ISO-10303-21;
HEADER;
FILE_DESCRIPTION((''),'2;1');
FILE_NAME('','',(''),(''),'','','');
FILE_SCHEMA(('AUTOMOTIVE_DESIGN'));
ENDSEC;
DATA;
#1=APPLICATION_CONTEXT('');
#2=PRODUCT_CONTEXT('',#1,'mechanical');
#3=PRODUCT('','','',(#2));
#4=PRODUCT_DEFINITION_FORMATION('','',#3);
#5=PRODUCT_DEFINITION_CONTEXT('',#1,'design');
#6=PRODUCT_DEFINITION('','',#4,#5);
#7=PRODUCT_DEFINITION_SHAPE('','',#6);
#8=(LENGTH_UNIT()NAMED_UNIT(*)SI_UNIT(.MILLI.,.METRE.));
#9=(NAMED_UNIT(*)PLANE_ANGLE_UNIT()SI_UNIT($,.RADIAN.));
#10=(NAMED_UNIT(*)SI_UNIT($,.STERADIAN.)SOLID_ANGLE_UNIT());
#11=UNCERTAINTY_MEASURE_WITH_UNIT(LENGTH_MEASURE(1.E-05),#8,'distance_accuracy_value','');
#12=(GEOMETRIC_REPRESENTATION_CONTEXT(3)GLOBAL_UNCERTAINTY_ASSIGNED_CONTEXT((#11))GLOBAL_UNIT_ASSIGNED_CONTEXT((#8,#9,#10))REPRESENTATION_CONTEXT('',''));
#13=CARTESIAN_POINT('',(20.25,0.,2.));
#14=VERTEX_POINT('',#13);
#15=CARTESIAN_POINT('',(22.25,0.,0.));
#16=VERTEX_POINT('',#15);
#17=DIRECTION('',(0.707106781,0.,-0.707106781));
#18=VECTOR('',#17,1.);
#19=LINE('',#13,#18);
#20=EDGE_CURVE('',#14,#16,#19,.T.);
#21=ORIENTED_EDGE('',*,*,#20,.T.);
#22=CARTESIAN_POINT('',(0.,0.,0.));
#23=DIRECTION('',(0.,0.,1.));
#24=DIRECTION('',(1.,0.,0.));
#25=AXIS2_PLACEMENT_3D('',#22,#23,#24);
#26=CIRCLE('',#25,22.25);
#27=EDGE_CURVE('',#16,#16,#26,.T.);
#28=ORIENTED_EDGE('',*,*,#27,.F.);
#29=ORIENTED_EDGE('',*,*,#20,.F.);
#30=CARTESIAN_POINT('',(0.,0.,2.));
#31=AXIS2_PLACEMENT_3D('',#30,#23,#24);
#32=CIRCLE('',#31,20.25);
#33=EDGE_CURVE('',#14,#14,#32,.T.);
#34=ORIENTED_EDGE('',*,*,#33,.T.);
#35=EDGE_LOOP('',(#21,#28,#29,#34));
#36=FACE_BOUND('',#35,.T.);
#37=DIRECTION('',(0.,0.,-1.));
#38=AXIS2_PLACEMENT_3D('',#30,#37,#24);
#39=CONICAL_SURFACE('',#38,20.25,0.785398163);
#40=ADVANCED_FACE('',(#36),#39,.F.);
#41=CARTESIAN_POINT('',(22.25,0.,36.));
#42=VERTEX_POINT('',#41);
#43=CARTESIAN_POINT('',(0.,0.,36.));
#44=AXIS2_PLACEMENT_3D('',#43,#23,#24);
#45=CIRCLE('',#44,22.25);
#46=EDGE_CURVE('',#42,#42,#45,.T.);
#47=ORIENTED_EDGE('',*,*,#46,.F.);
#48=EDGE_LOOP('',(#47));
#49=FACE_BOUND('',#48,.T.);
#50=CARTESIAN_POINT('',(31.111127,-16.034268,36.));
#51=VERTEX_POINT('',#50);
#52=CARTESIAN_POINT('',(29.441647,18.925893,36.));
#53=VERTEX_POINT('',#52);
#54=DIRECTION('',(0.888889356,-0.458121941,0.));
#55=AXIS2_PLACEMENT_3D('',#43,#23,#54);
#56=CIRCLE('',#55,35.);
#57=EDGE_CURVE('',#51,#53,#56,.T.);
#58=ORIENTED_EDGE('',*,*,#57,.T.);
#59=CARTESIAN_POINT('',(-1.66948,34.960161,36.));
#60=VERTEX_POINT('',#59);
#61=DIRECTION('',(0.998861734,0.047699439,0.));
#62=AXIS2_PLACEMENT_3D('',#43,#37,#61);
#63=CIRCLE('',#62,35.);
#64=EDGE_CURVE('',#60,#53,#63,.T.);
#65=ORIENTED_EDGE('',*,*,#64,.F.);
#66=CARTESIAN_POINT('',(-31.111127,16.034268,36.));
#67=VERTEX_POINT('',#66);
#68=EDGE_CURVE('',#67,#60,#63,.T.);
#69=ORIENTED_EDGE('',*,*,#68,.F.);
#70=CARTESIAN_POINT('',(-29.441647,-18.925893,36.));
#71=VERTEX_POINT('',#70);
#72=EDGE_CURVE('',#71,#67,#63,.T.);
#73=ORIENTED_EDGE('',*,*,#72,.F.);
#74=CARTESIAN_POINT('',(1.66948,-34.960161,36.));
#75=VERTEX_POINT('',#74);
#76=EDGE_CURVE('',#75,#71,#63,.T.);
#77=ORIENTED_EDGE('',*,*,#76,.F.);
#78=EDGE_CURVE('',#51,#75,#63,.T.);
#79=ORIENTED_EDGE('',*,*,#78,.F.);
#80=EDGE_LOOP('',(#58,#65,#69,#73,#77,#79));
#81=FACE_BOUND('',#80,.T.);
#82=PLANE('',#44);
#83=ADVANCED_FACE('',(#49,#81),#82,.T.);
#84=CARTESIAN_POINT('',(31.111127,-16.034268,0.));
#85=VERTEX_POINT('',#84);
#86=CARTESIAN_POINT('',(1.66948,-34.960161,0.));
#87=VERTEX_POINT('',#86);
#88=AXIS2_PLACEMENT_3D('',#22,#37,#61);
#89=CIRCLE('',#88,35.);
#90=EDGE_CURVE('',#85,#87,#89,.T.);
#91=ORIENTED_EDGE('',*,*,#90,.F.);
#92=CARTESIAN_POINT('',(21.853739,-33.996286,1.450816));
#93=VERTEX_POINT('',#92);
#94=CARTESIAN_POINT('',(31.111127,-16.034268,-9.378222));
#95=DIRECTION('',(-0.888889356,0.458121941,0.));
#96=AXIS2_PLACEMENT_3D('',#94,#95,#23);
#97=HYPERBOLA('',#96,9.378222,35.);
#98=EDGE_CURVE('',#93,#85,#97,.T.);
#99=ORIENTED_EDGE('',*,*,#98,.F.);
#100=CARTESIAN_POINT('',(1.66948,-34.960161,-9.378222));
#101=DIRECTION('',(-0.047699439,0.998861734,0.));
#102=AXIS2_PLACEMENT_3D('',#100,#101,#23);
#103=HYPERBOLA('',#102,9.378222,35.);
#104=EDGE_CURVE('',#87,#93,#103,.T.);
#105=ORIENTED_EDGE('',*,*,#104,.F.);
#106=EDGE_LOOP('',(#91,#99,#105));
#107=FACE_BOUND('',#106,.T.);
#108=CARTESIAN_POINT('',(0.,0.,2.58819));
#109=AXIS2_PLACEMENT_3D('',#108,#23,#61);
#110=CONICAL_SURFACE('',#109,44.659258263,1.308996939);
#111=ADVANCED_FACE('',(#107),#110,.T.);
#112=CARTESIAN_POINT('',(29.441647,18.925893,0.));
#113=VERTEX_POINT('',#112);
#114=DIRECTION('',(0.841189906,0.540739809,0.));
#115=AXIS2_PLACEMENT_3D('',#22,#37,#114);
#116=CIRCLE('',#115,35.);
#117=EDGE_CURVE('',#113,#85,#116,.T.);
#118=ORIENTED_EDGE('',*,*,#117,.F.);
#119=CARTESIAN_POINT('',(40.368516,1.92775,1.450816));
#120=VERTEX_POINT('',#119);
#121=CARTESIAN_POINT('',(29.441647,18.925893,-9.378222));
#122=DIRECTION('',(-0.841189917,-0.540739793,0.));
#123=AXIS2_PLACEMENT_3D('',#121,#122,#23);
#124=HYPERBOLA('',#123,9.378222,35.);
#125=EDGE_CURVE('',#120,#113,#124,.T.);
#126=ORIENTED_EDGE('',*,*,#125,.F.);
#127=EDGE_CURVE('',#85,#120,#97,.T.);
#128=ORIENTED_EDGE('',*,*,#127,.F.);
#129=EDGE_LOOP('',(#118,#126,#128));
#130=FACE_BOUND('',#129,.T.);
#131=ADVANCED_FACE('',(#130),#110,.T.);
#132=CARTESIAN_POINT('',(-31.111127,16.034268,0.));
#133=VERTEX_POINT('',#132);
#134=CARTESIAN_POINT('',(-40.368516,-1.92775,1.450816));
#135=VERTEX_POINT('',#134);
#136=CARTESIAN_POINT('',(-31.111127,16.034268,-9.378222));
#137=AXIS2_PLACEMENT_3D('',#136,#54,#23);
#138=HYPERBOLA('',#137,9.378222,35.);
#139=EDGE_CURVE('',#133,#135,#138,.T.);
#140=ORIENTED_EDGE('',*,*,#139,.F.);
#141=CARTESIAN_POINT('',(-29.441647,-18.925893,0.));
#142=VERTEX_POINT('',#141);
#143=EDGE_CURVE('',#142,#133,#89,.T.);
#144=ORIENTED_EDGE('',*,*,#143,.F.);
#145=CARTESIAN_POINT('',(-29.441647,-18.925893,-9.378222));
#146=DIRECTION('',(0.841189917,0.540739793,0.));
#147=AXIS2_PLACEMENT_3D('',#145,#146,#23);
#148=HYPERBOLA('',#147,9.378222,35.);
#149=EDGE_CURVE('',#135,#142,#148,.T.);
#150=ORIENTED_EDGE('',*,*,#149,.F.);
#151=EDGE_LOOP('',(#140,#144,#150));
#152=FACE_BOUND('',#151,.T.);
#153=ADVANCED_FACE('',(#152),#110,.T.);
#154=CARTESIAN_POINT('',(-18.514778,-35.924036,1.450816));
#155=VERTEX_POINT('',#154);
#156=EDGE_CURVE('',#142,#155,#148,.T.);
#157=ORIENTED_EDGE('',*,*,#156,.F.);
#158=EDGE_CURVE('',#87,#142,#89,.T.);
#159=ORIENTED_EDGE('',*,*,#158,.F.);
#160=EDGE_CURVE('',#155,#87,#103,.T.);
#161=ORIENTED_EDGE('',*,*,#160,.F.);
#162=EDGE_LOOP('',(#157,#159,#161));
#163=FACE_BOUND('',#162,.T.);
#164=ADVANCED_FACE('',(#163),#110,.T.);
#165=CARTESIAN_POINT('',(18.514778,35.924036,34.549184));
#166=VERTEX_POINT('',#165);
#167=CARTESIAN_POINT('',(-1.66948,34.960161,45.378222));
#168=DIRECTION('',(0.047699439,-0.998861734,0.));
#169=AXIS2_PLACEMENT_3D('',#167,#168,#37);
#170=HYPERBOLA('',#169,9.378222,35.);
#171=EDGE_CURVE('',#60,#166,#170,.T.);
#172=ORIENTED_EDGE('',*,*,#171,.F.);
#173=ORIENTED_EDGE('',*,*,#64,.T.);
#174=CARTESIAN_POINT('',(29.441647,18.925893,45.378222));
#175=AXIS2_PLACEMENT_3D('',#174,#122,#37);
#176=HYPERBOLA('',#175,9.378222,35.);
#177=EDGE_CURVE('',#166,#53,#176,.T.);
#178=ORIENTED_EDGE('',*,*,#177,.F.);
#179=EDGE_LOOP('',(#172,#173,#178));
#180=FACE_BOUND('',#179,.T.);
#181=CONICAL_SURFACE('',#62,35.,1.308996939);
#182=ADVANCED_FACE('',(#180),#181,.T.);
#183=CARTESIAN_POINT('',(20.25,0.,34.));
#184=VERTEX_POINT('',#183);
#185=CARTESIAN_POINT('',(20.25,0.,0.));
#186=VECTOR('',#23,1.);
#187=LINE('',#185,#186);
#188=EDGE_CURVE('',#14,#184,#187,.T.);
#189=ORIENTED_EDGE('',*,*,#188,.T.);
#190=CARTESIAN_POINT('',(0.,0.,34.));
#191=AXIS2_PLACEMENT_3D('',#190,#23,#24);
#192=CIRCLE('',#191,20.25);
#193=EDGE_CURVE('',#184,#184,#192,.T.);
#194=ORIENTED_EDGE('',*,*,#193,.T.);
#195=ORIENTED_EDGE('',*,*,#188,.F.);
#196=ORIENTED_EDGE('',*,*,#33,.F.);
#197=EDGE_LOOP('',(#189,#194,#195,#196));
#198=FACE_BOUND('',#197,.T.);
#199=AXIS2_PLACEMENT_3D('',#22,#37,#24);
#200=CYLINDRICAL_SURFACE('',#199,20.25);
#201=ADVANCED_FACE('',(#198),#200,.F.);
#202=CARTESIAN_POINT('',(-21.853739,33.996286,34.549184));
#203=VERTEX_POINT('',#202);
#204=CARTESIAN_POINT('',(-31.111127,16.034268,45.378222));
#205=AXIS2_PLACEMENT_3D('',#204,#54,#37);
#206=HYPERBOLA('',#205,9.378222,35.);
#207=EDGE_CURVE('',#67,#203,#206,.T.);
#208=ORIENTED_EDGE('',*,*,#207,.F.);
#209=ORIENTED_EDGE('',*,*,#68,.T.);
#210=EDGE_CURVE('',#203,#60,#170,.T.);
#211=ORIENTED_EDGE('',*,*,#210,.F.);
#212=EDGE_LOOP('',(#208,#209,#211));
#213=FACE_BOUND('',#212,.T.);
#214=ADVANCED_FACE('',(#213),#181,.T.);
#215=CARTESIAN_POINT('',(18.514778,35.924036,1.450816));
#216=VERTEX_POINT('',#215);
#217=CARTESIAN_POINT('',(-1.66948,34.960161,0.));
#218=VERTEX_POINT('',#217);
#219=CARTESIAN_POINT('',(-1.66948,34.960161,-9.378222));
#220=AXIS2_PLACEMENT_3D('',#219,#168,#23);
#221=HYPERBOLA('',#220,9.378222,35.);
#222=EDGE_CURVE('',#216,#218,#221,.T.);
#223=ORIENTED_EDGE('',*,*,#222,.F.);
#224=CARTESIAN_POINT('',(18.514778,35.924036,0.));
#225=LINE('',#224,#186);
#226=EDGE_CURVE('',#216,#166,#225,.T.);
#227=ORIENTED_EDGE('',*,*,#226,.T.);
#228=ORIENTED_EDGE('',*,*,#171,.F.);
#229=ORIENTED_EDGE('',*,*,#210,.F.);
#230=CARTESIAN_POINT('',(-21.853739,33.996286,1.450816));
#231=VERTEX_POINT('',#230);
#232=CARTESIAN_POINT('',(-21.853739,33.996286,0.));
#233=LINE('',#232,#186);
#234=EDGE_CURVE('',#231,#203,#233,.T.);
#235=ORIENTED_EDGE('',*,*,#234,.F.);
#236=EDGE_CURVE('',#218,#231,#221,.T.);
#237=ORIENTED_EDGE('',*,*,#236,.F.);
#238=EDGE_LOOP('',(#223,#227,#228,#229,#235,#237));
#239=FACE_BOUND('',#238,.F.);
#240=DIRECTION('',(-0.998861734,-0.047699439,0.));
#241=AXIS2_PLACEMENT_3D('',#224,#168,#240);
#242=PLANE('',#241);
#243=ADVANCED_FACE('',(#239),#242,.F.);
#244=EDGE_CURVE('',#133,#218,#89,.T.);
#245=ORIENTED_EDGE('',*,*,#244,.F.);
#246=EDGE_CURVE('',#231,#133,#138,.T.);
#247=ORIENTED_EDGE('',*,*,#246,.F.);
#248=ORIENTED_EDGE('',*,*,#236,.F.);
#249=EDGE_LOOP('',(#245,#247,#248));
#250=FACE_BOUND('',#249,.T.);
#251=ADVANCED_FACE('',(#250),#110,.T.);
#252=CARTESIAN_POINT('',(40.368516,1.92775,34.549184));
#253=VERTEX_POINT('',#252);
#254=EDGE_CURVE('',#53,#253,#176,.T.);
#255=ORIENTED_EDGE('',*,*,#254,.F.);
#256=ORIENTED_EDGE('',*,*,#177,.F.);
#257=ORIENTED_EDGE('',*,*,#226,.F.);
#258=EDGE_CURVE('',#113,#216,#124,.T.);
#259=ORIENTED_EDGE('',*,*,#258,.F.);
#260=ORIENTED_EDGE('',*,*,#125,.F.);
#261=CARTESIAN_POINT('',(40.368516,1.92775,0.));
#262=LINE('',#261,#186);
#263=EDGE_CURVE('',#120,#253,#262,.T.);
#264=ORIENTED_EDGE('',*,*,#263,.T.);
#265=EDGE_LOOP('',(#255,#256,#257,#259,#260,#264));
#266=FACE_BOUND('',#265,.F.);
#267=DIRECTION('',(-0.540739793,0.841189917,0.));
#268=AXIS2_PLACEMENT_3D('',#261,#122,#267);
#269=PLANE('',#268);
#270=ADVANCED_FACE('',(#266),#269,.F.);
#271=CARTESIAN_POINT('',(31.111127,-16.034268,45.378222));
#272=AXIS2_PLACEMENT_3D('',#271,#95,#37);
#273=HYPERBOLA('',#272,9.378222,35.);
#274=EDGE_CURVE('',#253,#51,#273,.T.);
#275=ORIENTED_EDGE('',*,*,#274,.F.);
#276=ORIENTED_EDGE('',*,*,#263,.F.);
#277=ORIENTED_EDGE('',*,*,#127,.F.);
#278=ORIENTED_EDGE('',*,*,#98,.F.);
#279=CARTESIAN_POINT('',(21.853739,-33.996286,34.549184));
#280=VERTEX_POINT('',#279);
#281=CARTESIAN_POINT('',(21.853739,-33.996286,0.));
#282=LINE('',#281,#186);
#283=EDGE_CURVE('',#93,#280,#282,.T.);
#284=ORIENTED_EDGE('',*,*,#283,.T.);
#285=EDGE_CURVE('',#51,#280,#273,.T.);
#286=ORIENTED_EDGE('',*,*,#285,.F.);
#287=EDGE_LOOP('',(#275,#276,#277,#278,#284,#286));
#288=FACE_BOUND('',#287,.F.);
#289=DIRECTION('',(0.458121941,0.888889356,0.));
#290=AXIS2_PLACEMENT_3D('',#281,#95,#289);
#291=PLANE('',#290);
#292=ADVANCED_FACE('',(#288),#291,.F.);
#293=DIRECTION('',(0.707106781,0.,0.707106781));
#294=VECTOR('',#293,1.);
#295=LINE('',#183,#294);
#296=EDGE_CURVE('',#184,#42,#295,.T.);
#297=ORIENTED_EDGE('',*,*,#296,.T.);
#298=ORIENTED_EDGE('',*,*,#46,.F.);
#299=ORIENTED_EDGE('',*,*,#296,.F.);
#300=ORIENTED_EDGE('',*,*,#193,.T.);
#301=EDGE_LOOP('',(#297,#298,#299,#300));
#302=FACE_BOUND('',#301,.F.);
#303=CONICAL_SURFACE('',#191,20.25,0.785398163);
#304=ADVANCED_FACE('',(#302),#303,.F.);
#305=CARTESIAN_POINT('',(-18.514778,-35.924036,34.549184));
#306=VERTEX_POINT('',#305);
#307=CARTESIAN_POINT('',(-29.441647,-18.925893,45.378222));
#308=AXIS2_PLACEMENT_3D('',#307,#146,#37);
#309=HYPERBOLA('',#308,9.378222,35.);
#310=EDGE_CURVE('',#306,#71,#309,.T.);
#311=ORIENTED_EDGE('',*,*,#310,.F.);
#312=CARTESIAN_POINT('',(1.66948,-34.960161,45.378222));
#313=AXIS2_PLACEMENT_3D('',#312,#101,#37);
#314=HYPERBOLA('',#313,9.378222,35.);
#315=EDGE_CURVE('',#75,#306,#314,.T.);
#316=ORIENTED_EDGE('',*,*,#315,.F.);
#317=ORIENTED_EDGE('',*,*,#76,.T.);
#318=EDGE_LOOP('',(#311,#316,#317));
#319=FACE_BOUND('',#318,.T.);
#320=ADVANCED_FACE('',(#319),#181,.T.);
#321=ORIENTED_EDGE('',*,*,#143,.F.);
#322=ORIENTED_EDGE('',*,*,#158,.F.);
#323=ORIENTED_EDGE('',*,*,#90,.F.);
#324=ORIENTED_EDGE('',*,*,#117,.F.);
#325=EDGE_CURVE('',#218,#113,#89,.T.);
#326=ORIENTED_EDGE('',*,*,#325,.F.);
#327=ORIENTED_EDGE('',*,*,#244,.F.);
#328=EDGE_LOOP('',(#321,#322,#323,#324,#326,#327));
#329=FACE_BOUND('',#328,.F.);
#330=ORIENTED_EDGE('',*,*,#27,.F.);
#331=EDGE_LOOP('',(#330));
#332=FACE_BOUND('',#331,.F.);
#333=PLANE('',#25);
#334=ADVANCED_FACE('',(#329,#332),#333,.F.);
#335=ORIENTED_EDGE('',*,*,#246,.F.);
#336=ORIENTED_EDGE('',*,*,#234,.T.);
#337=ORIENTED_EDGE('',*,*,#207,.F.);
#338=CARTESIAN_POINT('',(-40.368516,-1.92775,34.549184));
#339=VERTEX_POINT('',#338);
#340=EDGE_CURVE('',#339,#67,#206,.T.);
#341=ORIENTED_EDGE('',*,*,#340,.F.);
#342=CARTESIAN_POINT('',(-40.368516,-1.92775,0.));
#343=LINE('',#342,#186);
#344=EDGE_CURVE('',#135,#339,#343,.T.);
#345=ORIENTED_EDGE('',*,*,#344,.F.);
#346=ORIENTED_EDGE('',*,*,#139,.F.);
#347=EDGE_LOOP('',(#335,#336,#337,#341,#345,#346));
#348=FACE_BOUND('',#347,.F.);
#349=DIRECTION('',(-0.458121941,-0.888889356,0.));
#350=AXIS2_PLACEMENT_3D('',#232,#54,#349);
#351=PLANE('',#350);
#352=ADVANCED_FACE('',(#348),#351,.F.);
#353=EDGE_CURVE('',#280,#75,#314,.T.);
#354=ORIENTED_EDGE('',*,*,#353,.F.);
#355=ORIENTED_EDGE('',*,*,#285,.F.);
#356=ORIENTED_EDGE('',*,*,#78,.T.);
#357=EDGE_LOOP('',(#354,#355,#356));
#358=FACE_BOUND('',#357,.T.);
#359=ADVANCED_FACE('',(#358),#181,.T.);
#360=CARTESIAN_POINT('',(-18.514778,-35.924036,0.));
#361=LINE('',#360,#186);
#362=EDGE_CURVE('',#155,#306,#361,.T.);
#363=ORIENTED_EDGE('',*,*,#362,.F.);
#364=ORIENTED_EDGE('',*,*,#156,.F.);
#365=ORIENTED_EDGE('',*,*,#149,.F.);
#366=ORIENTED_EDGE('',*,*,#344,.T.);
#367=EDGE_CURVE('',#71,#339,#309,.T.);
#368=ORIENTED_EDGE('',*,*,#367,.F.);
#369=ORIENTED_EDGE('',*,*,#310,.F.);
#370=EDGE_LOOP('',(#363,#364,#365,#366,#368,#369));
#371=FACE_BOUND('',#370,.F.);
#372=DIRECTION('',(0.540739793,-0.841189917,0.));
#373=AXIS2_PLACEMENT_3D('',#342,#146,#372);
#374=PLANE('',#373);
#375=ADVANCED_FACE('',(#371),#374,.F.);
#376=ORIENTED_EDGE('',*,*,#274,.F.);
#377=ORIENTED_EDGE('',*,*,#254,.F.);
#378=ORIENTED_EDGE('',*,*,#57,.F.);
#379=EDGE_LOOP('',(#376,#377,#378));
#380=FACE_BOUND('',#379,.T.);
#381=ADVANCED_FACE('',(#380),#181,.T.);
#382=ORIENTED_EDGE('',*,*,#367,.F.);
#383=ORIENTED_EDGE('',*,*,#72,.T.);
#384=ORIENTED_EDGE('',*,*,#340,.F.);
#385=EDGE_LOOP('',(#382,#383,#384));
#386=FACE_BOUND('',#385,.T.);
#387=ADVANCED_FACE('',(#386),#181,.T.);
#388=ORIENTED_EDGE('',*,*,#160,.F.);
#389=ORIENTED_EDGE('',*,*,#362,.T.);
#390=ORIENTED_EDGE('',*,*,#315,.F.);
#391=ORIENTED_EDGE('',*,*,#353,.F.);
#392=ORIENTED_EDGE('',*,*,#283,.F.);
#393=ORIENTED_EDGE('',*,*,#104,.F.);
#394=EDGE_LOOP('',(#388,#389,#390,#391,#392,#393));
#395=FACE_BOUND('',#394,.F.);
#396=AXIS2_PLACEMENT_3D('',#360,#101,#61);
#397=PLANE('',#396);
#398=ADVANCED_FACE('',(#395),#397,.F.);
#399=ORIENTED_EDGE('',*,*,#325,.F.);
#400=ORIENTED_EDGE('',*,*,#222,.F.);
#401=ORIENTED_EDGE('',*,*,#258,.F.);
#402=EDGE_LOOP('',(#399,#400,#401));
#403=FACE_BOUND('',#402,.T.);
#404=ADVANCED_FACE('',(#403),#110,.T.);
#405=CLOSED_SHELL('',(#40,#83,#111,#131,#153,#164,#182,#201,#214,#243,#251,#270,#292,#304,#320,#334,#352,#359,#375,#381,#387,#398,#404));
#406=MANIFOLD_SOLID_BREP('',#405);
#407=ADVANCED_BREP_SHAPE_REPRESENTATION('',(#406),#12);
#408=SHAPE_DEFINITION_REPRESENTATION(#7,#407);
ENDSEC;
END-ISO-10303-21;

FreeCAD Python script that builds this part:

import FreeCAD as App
import Part
import Sketcher

V = App.Vector
Q = App.Units.Quantity


def edges_at(feature, points):
    """Names of the edges that pass closest to the given points."""
    edges = feature.Shape.Edges
    near = lambda p: min(range(len(edges)), key=lambda i: edges[i].distToShape(Part.Vertex(*p))[0])
    return sorted({f"Edge{near(p) + 1}" for p in points})

doc = App.newDocument("Part")
body = doc.addObject("PartDesign::Body", "Body")

# Sketch on XY plane
sketch1 = doc.addObject("Sketcher::SketchObject", "Sketch")
body.addObject(sketch1)
sketch1.AttachmentSupport = (doc.XY_Plane, [""])
sketch1.MapMode = "FlatFace"
sketch1.addGeometry([
    Part.LineSegment(V(22, -34, 0), V(40, 2, 0)),  # 0
    Part.LineSegment(V(40, 2, 0), V(19, 36, 0)),  # 1
    Part.LineSegment(V(19, 36, 0), V(-22, 34, 0)),  # 2
    Part.LineSegment(V(-22, 34, 0), V(-40, -2, 0)),  # 3
    Part.LineSegment(V(-40, -2, 0), V(-19, -36, 0)),  # 4
    Part.LineSegment(V(-19, -36, 0), V(22, -34, 0)),  # 5
    Part.Circle(V(0, 0, 0), V(0, 0, 1), 20),  # 6
], False)
sketch1.addConstraint([
    Sketcher.Constraint("Coincident", 0, 2, 1, 1),
    Sketcher.Constraint("Coincident", 1, 2, 2, 1),
    Sketcher.Constraint("Coincident", 2, 2, 3, 1),
    Sketcher.Constraint("Coincident", 3, 2, 4, 1),
    Sketcher.Constraint("Coincident", 4, 2, 5, 1),
    Sketcher.Constraint("Coincident", 5, 2, 0, 1),
    Sketcher.Constraint("Coincident", 6, 3, -1, 1),
    Sketcher.Constraint("Symmetric", 0, 2, 3, 2, -1, 1),
    Sketcher.Constraint("Symmetric", 1, 2, 4, 2, -1, 1),
    Sketcher.Constraint("Symmetric", 2, 2, 5, 2, -1, 1),
    Sketcher.Constraint("Equal", 0, 1),
    Sketcher.Constraint("Equal", 1, 2),
    Sketcher.Constraint("Diameter", 6, Q("40.5 mm")),
    Sketcher.Constraint("DistanceY", 3, 2, 0, 2, Q("3.8555 mm")),
    Sketcher.Constraint("Distance", 0, Q("40.414519 mm")),
    Sketcher.Constraint("DistanceX", 2, 2, -1, 1, Q("21.853739 mm")),
    Sketcher.Constraint("DistanceX", 1, 2, 0, 2, Q("21.853739 mm")),
])
pad1 = doc.addObject("PartDesign::Pad", "Pad")
body.addObject(pad1)
pad1.Profile = sketch1
pad1.Length = 36
doc.recompute()

chamfer = doc.addObject("PartDesign::Chamfer", "Chamfer")
body.addObject(chamfer)
chamfer.Base = (pad1, edges_at(pad1, [(-20.25, 0, 36), (-20.25, 0, 0)]))
chamfer.Size = 2

# Sketch on an angled plane
sketch2 = doc.addObject("Sketcher::SketchObject", "Sketch001")
body.addObject(sketch2)
sketch2.Placement = App.Placement(V(0, 0, 0), App.Rotation(V(0.998861734, 0.047699439, 0), V(0, 0, 1), V(0.047699439, -0.998861734, 0), "ZXY"))
sketch2.addGeometry([
    Part.LineSegment(V(35, 37.1, 0), V(35, 36, 0)),  # 0
    Part.LineSegment(V(35, 36, 0), V(44.7, 33.4, 0)),  # 1
    Part.LineSegment(V(44.7, 33.4, 0), V(44.7, 39.7, 0)),  # 2
    Part.LineSegment(V(44.7, 39.7, 0), V(35, 37.1, 0)),  # 3
    Part.LineSegment(V(35, -1.1, 0), V(44.7, -3.7, 0)),  # 4
    Part.LineSegment(V(44.7, -3.7, 0), V(44.7, 2.6, 0)),  # 5
    Part.LineSegment(V(44.7, 2.6, 0), V(35, 0, 0)),  # 6
    Part.LineSegment(V(35, 0, 0), V(35, -1.1, 0)),  # 7
], False)
sketch2.addConstraint([
    Sketcher.Constraint("Coincident", 0, 2, 1, 1),
    Sketcher.Constraint("Coincident", 1, 2, 2, 1),
    Sketcher.Constraint("Coincident", 2, 2, 3, 1),
    Sketcher.Constraint("Coincident", 3, 2, 0, 1),
    Sketcher.Constraint("Coincident", 4, 2, 5, 1),
    Sketcher.Constraint("Coincident", 5, 2, 6, 1),
    Sketcher.Constraint("Coincident", 6, 2, 7, 1),
    Sketcher.Constraint("Coincident", 7, 2, 4, 1),
    Sketcher.Constraint("Vertical", 0),
    Sketcher.Constraint("Vertical", 2),
    Sketcher.Constraint("Vertical", 5),
    Sketcher.Constraint("Vertical", 7),
    Sketcher.Constraint("PointOnObject", 6, 2, -1),
    Sketcher.Constraint("Vertical", 2, 2, 4, 2),
    Sketcher.Constraint("Vertical", 3, 2, 6, 2),
    Sketcher.Constraint("Equal", 2, 5),
    Sketcher.Constraint("Equal", 0, 7),
    Sketcher.Constraint("Equal", 3, 4),
    Sketcher.Constraint("Angle", 1, Q("-15 deg")),
    Sketcher.Constraint("Distance", 1, Q("10 mm")),
    Sketcher.Constraint("DistanceX", -1, 1, 0, 2, Q("35 mm")),
    Sketcher.Constraint("DistanceY", -1, 1, 0, 2, Q("36 mm")),
    Sketcher.Constraint("DistanceY", 2, 1, 2, 2, Q("6.26347 mm")),
    Sketcher.Constraint("DistanceY", 0, 2, 0, 1, Q("1.109073 mm")),
])
groove = doc.addObject("PartDesign::Groove", "Groove")
body.addObject(groove)
groove.Profile = sketch2
groove.ReferenceAxis = (sketch2, ["V_Axis"])
groove.Angle = 360

doc.recompute()
